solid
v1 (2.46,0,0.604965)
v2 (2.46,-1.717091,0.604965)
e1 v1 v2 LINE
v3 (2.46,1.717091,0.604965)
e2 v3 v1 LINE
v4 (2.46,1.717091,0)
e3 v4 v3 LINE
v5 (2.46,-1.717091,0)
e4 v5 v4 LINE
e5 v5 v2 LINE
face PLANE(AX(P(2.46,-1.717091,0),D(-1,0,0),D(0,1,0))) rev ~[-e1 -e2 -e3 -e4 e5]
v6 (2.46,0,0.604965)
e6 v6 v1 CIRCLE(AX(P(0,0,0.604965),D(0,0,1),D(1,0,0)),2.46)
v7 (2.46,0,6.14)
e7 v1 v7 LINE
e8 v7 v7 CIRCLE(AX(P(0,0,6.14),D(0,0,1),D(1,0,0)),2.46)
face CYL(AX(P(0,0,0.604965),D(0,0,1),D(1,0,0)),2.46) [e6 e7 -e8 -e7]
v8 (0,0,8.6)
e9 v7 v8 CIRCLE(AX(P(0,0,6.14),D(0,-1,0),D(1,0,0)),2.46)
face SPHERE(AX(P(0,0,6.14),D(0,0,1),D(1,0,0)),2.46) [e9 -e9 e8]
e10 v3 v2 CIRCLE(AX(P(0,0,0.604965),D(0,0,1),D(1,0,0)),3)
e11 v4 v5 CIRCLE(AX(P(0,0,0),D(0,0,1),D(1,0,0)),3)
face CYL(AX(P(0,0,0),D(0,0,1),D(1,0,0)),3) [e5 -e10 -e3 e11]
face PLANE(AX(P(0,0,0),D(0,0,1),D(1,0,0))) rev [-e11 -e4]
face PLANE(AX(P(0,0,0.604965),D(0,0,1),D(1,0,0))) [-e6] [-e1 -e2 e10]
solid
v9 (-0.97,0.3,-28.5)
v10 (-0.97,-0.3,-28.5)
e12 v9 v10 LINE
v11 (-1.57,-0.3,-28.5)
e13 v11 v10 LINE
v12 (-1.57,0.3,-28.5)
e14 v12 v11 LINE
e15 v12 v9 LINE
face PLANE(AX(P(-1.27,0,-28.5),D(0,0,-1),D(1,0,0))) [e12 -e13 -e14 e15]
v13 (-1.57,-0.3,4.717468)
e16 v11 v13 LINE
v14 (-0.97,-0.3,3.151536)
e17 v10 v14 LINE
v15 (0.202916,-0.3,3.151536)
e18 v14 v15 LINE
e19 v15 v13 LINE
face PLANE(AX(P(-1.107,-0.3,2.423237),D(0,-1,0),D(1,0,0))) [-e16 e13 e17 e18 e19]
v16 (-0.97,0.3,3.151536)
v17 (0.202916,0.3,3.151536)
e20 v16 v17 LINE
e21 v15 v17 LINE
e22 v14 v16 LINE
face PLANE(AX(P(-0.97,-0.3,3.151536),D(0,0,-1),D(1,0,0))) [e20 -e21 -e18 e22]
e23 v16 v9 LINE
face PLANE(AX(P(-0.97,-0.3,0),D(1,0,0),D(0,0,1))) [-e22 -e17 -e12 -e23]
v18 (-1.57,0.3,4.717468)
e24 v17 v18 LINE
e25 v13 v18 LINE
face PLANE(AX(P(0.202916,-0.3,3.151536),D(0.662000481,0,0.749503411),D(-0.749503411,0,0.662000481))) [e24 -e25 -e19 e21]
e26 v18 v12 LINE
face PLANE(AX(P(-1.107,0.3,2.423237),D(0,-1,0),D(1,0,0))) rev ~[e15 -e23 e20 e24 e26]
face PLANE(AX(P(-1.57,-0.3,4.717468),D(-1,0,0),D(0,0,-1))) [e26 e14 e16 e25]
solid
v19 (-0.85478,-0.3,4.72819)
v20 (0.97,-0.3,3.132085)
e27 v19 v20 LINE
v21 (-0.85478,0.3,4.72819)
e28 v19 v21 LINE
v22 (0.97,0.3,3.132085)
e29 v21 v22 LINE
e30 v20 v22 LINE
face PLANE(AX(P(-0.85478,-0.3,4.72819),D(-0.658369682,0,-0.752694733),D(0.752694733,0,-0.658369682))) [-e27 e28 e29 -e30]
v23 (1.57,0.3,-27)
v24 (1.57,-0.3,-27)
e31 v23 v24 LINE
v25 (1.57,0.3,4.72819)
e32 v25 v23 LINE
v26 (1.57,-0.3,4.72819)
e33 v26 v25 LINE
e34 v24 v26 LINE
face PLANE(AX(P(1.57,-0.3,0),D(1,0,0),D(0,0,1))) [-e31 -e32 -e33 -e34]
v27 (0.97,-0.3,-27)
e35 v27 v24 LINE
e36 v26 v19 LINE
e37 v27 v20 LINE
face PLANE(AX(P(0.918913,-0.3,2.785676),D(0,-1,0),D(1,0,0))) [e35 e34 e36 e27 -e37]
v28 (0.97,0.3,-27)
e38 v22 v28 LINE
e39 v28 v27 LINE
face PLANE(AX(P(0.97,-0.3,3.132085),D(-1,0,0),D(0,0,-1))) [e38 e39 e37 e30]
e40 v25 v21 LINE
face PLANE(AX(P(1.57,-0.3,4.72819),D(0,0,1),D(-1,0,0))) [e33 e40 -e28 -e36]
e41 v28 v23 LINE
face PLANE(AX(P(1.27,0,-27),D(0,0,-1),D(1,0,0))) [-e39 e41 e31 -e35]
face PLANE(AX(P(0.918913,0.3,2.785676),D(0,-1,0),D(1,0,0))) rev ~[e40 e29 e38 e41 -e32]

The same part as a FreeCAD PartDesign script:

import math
import FreeCAD as App
import Part
import Sketcher
Q = App.Units.Quantity

doc = App.newDocument("Part")
body = doc.addObject("PartDesign::Body", "Body")

# Sketch on XZ plane
sketch1 = body.newObject("Sketcher::SketchObject", "Sketch")
sketch1.AttachmentSupport = (doc.getObject("XZ_Plane"), [""])
sketch1.MapMode = "FlatFace"
sketch1.addGeometry(Part.LineSegment(App.Vector(0, 0, 0), App.Vector(3, 0, 0)), False)
sketch1.addGeometry(Part.LineSegment(App.Vector(3, 0, 0), App.Vector(3, 0.6, 0)), False)
sketch1.addGeometry(Part.LineSegment(App.Vector(3, 0.6, 0), App.Vector(2.5, 0.6, 0)), False)
sketch1.addGeometry(Part.LineSegment(App.Vector(2.5, 0.6, 0), App.Vector(2.5, 6.1, 0)), False)
sketch1.addGeometry(Part.ArcOfCircle(Part.Circle(App.Vector(0, 6.1, 0), App.Vector(0, 0, 1), 2.5), math.radians(0), math.radians(90)), False)
sketch1.addGeometry(Part.LineSegment(App.Vector(0, 8.6, 0), App.Vector(0, 0, 0)), False)
sketch1.addConstraint(Sketcher.Constraint("Coincident", 0, 2, 1, 1))
sketch1.addConstraint(Sketcher.Constraint("Coincident", 1, 2, 2, 1))
sketch1.addConstraint(Sketcher.Constraint("Coincident", 2, 2, 3, 1))
sketch1.addConstraint(Sketcher.Constraint("Tangent", 3, 2, 4, 1))
sketch1.addConstraint(Sketcher.Constraint("Coincident", 4, 2, 5, 1))
sketch1.addConstraint(Sketcher.Constraint("Coincident", 5, 2, 0, 1))
sketch1.addConstraint(Sketcher.Constraint("Horizontal", 0))
sketch1.addConstraint(Sketcher.Constraint("Vertical", 1))
sketch1.addConstraint(Sketcher.Constraint("Horizontal", 2))
sketch1.addConstraint(Sketcher.Constraint("Vertical", 3))
sketch1.addConstraint(Sketcher.Constraint("Vertical", 5))
sketch1.addConstraint(Sketcher.Constraint("Coincident", 5, 2, -1, 1))
sketch1.addConstraint(Sketcher.Constraint("PointOnObject", 4, 3, -2))
sketch1.addConstraint(Sketcher.Constraint("DistanceX", 0, 1, 0, 2, Q("3 mm")))
sketch1.addConstraint(Sketcher.Constraint("Radius", 4, Q("2.46 mm")))
sketch1.addConstraint(Sketcher.Constraint("DistanceY", 5, 2, 5, 1, Q("8.6 mm")))
sketch1.addConstraint(Sketcher.Constraint("DistanceY", 1, 1, 1, 2, Q("0.604965 mm")))
revolution = body.newObject("PartDesign::Revolution", "Revolution")
revolution.Profile = sketch1
revolution.ReferenceAxis = (sketch1, ["V_Axis"])
revolution.Angle = 360

# Sketch on XY plane
sketch2 = body.newObject("Sketcher::SketchObject", "Sketch001")
sketch2.AttachmentSupport = (doc.getObject("XY_Plane"), [""])
sketch2.MapMode = "FlatFace"
sketch2.addGeometry(Part.LineSegment(App.Vector(2.5, -1.7, 0), App.Vector(2.5, 1.7, 0)), False)
sketch2.addGeometry(Part.ArcOfCircle(Part.Circle(App.Vector(0, 0, 0), App.Vector(0, 0, 1), 3), math.radians(0), math.radians(35)), False)
sketch2.addGeometry(Part.ArcOfCircle(Part.Circle(App.Vector(0, 0, 0), App.Vector(0, 0, 1), 3), math.radians(-35), math.radians(0)), False)
sketch2.addConstraint(Sketcher.Constraint("Coincident", 0, 2, 1, 2))
sketch2.addConstraint(Sketcher.Constraint("Tangent", 1, 1, 2, 2))
sketch2.addConstraint(Sketcher.Constraint("Coincident", 2, 1, 0, 1))
sketch2.addConstraint(Sketcher.Constraint("Vertical", 0))
sketch2.addConstraint(Sketcher.Constraint("Coincident", 1, 3, -1, 1))
sketch2.addConstraint(Sketcher.Constraint("Equal", 1, 2))
sketch2.addConstraint(Sketcher.Constraint("PointOnObject", 1, 1, -1))
sketch2.addConstraint(Sketcher.Constraint("Radius", 1, Q("3 mm")))
sketch2.addConstraint(Sketcher.Constraint("DistanceX", -1, 1, 0, 2, Q("2.46 mm")))
pocket1 = body.newObject("PartDesign::Pocket", "Pocket")
pocket1.Profile = sketch2
pocket1.Length = 25.4
pocket1.Reversed = True
body2 = doc.addObject("PartDesign::Body", "Body001")

# Sketch on XY plane
sketch3 = body2.newObject("Sketcher::SketchObject", "Sketch002")
sketch3.AttachmentSupport = (doc.getObject("XY_Plane001"), [""])
sketch3.MapMode = "FlatFace"
sketch3.addGeometry(Part.LineSegment(App.Vector(1, -0.3, 0), App.Vector(1, 0.3, 0)), False)
sketch3.addGeometry(Part.LineSegment(App.Vector(1, 0.3, 0), App.Vector(1.6, 0.3, 0)), False)
sketch3.addGeometry(Part.LineSegment(App.Vector(1.6, 0.3, 0), App.Vector(1.6, -0.3, 0)), False)
sketch3.addGeometry(Part.LineSegment(App.Vector(1.6, -0.3, 0), App.Vector(1, -0.3, 0)), False)
sketch3.addConstraint(Sketcher.Constraint("Coincident", 0, 2, 1, 1))
sketch3.addConstraint(Sketcher.Constraint("Coincident", 1, 2, 2, 1))
sketch3.addConstraint(Sketcher.Constraint("Coincident", 2, 2, 3, 1))
sketch3.addConstraint(Sketcher.Constraint("Coincident", 3, 2, 0, 1))
sketch3.addConstraint(Sketcher.Constraint("Vertical", 0))
sketch3.addConstraint(Sketcher.Constraint("Horizontal", 1))
sketch3.addConstraint(Sketcher.Constraint("Vertical", 2))
sketch3.addConstraint(Sketcher.Constraint("Horizontal", 3))
sketch3.addConstraint(Sketcher.Constraint("Equal", 3, 0))
sketch3.addConstraint(Sketcher.Constraint("DistanceX", 1, 1, 1, 2, Q("0.6 mm")))
sketch3.addConstraint(Sketcher.Constraint("DistanceY", -1, 1, 0, 2, Q("0.3 mm")))
sketch3.addConstraint(Sketcher.Constraint("DistanceX", -1, 1, 0, 2, Q("0.97 mm")))
pad1 = body2.newObject("PartDesign::Pad", "Pad")
pad1.Profile = sketch3
pad1.Length = 27
pad1.Reversed = True

# Sketch on XZ plane
sketch4 = body2.newObject("Sketcher::SketchObject", "Sketch003")
sketch4.AttachmentSupport = (doc.getObject("XZ_Plane001"), [""])
sketch4.MapMode = "FlatFace"
sketch4.AttachmentOffset = App.Placement(App.Vector(0, 0, 0.3), App.Rotation())
sketch4.addGeometry(Part.LineSegment(App.Vector(1, 3.1, 0), App.Vector(1, 0, 0)), False)
sketch4.addGeometry(Part.LineSegment(App.Vector(1, 0, 0), App.Vector(1.6, 0, 0)), False)
sketch4.addGeometry(Part.LineSegment(App.Vector(1.6, 0, 0), App.Vector(1.6, 4.7, 0)), False)
sketch4.addGeometry(Part.LineSegment(App.Vector(1.6, 4.7, 0), App.Vector(-0.9, 4.7, 0)), False)
sketch4.addGeometry(Part.LineSegment(App.Vector(-0.9, 4.7, 0), App.Vector(1, 3.1, 0)), False)
sketch4.addConstraint(Sketcher.Constraint("Coincident", 0, 2, 1, 1))
sketch4.addConstraint(Sketcher.Constraint("Coincident", 1, 2, 2, 1))
sketch4.addConstraint(Sketcher.Constraint("Coincident", 2, 2, 3, 1))
sketch4.addConstraint(Sketcher.Constraint("Coincident", 3, 2, 4, 1))
sketch4.addConstraint(Sketcher.Constraint("Coincident", 4, 2, 0, 1))
sketch4.addConstraint(Sketcher.Constraint("Vertical", 0))
sketch4.addConstraint(Sketcher.Constraint("Horizontal", 1))
sketch4.addConstraint(Sketcher.Constraint("Vertical", 2))
sketch4.addConstraint(Sketcher.Constraint("Horizontal", 3))
sketch4.addConstraint(Sketcher.Constraint("PointOnObject", 0, 2, -1))
sketch4.addConstraint(Sketcher.Constraint("DistanceX", 1, 1, 1, 2, Q("0.6 mm")))
sketch4.addConstraint(Sketcher.Constraint("DistanceX", -1, 1, 0, 2, Q("0.97 mm")))
sketch4.addConstraint(Sketcher.Constraint("DistanceX", 3, 2, 3, 1, Q("2.42478 mm")))
sketch4.addConstraint(Sketcher.Constraint("DistanceY", 2, 1, 2, 2, Q("4.72819 mm")))
sketch4.addConstraint(Sketcher.Constraint("Distance", 4, Q("2.424329 mm")))
pad2 = body2.newObject("PartDesign::Pad", "Pad001")
pad2.Profile = sketch4
pad2.Length = 0.6
pad2.Reversed = True
body3 = doc.addObject("PartDesign::Body", "Body002")

# Sketch on XY plane
sketch5 = body3.newObject("Sketcher::SketchObject", "Sketch004")
sketch5.AttachmentSupport = (doc.getObject("XY_Plane002"), [""])
sketch5.MapMode = "FlatFace"
sketch5.addGeometry(Part.LineSegment(App.Vector(-1.6, -0.3, 0), App.Vector(-1.6, 0.3, 0)), False)
sketch5.addGeometry(Part.LineSegment(App.Vector(-1.6, 0.3, 0), App.Vector(-1, 0.3, 0)), False)
sketch5.addGeometry(Part.LineSegment(App.Vector(-1, 0.3, 0), App.Vector(-1, -0.3, 0)), False)
sketch5.addGeometry(Part.LineSegment(App.Vector(-1, -0.3, 0), App.Vector(-1.6, -0.3, 0)), False)
sketch5.addConstraint(Sketcher.Constraint("Coincident", 0, 2, 1, 1))
sketch5.addConstraint(Sketcher.Constraint("Coincident", 1, 2, 2, 1))
sketch5.addConstraint(Sketcher.Constraint("Coincident", 2, 2, 3, 1))
sketch5.addConstraint(Sketcher.Constraint("Coincident", 3, 2, 0, 1))
sketch5.addConstraint(Sketcher.Constraint("Vertical", 0))
sketch5.addConstraint(Sketcher.Constraint("Horizontal", 1))
sketch5.addConstraint(Sketcher.Constraint("Vertical", 2))
sketch5.addConstraint(Sketcher.Constraint("Horizontal", 3))
sketch5.addConstraint(Sketcher.Constraint("Equal", 3, 0))
sketch5.addConstraint(Sketcher.Constraint("DistanceX", 1, 1, 1, 2, Q("0.6 mm")))
sketch5.addConstraint(Sketcher.Constraint("DistanceY", -1, 1, 0, 2, Q("0.3 mm")))
sketch5.addConstraint(Sketcher.Constraint("DistanceX", 0, 2, -1, 1, Q("1.57 mm")))
pad3 = body3.newObject("PartDesign::Pad", "Pad002")
pad3.Profile = sketch5
pad3.Length = 28.5
pad3.Reversed = True

# Sketch on XZ plane
sketch6 = body3.newObject("Sketcher::SketchObject", "Sketch005")
sketch6.AttachmentSupport = (doc.getObject("XZ_Plane002"), [""])
sketch6.MapMode = "FlatFace"
sketch6.AttachmentOffset = App.Placement(App.Vector(0, 0, 0.3), App.Rotation())
sketch6.addGeometry(Part.LineSegment(App.Vector(-1.6, 4.7, 0), App.Vector(-1.6, 0, 0)), False)
sketch6.addGeometry(Part.LineSegment(App.Vector(-1.6, 0, 0), App.Vector(-1, 0, 0)), False)
sketch6.addGeometry(Part.LineSegment(App.Vector(-1, 0, 0), App.Vector(-1, 3.2, 0)), False)
sketch6.addGeometry(Part.LineSegment(App.Vector(-1, 3.2, 0), App.Vector(0.2, 3.2, 0)), False)
sketch6.addGeometry(Part.LineSegment(App.Vector(0.2, 3.2, 0), App.Vector(-1.6, 4.7, 0)), False)
sketch6.addConstraint(Sketcher.Constraint("Coincident", 0, 2, 1, 1))
sketch6.addConstraint(Sketcher.Constraint("Coincident", 1, 2, 2, 1))
sketch6.addConstraint(Sketcher.Constraint("Coincident", 2, 2, 3, 1))
sketch6.addConstraint(Sketcher.Constraint("Coincident", 3, 2, 4, 1))
sketch6.addConstraint(Sketcher.Constraint("Coincident", 4, 2, 0, 1))
sketch6.addConstraint(Sketcher.Constraint("Vertical", 0))
sketch6.addConstraint(Sketcher.Constraint("Horizontal", 1))
sketch6.addConstraint(Sketcher.Constraint("Vertical", 2))
sketch6.addConstraint(Sketcher.Constraint("Horizontal", 3))
sketch6.addConstraint(Sketcher.Constraint("PointOnObject", 0, 2, -1))
sketch6.addConstraint(Sketcher.Constraint("DistanceX", 1, 1, 1, 2, Q("0.6 mm")))
sketch6.addConstraint(Sketcher.Constraint("DistanceX", 0, 2, -1, 1, Q("1.57 mm")))
sketch6.addConstraint(Sketcher.Constraint("DistanceX", 3, 1, 3, 2, Q("1.172916 mm")))
sketch6.addConstraint(Sketcher.Constraint("DistanceY", 0, 2, 0, 1, Q("4.717468 mm")))
sketch6.addConstraint(Sketcher.Constraint("DistanceY", 2, 1, 2, 2, Q("3.151536 mm")))
pad4 = body3.newObject("PartDesign::Pad", "Pad003")
pad4.Profile = sketch6
pad4.Length = 0.6
pad4.Reversed = True

doc.recompute()
